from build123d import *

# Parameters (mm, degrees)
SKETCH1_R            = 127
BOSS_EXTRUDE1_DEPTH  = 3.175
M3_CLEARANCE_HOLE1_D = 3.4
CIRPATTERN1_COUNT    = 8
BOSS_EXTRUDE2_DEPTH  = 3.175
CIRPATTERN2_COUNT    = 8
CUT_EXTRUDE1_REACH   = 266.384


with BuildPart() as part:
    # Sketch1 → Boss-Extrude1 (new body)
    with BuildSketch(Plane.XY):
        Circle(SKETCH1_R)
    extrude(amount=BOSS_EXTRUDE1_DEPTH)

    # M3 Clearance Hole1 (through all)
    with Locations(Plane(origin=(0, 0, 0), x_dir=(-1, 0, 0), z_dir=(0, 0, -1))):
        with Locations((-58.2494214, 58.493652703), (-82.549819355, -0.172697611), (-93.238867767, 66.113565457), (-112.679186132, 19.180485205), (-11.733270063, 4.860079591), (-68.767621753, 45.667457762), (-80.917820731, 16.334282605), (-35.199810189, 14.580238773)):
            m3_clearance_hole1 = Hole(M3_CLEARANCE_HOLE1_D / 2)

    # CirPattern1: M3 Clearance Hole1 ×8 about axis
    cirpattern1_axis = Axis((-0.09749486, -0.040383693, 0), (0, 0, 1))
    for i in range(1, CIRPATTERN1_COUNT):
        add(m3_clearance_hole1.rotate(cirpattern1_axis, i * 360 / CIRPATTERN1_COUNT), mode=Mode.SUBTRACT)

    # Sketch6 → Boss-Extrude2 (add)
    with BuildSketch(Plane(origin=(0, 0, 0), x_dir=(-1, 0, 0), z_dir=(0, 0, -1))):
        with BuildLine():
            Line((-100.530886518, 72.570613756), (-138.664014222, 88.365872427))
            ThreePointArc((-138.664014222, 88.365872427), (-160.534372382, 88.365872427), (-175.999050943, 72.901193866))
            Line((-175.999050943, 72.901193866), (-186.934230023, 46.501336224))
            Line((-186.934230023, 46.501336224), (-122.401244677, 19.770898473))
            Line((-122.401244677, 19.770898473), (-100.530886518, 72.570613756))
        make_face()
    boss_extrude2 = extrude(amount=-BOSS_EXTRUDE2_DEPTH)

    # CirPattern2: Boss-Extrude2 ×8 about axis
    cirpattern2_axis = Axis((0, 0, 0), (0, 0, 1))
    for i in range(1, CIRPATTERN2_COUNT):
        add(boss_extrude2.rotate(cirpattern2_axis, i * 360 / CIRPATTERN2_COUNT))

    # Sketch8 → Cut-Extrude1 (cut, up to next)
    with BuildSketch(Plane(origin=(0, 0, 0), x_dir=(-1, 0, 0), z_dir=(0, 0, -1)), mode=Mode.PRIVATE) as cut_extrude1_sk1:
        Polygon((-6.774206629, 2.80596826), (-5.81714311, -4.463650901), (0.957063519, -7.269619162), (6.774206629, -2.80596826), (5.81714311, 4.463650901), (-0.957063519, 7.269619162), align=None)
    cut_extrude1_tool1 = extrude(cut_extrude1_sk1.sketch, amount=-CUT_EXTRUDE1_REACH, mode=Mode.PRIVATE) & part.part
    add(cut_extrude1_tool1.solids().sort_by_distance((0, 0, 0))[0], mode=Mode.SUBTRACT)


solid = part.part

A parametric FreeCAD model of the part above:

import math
import FreeCAD as App
import Part
import Sketcher
Q = App.Units.Quantity


def add_polygon(sketch, points):
    """Adds a closed chain of lines whose ends are joined by coincident constraints."""
    first, n = sketch.GeometryCount, len(points)
    for a, b in zip(points, points[1:] + points[:1]):
        sketch.addGeometry(Part.LineSegment(App.Vector(*a, 0), App.Vector(*b, 0)), False)
    for i in range(n):
        sketch.addConstraint(Sketcher.Constraint("Coincident", first + i, 2, first + (i + 1) % n, 1))

doc = App.newDocument("Part")
body = doc.addObject("PartDesign::Body", "Body")

sketch1 = doc.addObject("Sketcher::SketchObject", "Sketch")
body.addObject(sketch1)
sketch1.AttachmentSupport = (doc.XY_Plane, [""])
sketch1.MapMode = "FlatFace"
sketch1.addGeometry(Part.Circle(App.Vector(0, 0, 0), App.Vector(0, 0, 1), 127), False)
sketch1.addConstraint([
    Sketcher.Constraint("Coincident", 0, 3, -1, 1),
    Sketcher.Constraint("Diameter", 0, Q("10 in")),
])
pad1 = doc.addObject("PartDesign::Pad", "Pad")
body.addObject(pad1)
pad1.Profile = sketch1
pad1.Length = Q("0.125 in")

sketch2 = doc.addObject("Sketcher::SketchObject", "Sketch001")
body.addObject(sketch2)
sketch2.AttachmentSupport = (doc.XY_Plane, [""])
sketch2.MapMode = "FlatFace"
sketch2.addGeometry([
    Part.Circle(App.Vector(58.2, 58.5, 0), App.Vector(0, 0, 1), 1.7),
    Part.Circle(App.Vector(82.5, -0.2, 0), App.Vector(0, 0, 1), 1.7),
    Part.Circle(App.Vector(93.2, 66.1, 0), App.Vector(0, 0, 1), 1.7),
    Part.Circle(App.Vector(112.7, 19.2, 0), App.Vector(0, 0, 1), 1.7),
    Part.Circle(App.Vector(11.7, 4.9, 0), App.Vector(0, 0, 1), 1.7),
    Part.Circle(App.Vector(68.8, 45.7, 0), App.Vector(0, 0, 1), 1.7),
    Part.Circle(App.Vector(80.9, 16.3, 0), App.Vector(0, 0, 1), 1.7),
    Part.Circle(App.Vector(35.2, 14.6, 0), App.Vector(0, 0, 1), 1.7),
], False)
sketch2.addConstraint([
    Sketcher.Constraint("Equal", 0, 1),
    Sketcher.Constraint("Equal", 1, 2),
    Sketcher.Constraint("Equal", 2, 3),
    Sketcher.Constraint("Equal", 3, 4),
    Sketcher.Constraint("Equal", 4, 5),
    Sketcher.Constraint("Equal", 5, 6),
    Sketcher.Constraint("Equal", 6, 7),
    Sketcher.Constraint("Diameter", 0, Q("3.4 mm")),
    Sketcher.Constraint("DistanceX", 0, 3, 5, 3, Q("10.5182 mm")),
    Sketcher.Constraint("DistanceX", 6, 3, 1, 3, Q("1.631999 mm")),
    Sketcher.Constraint("DistanceX", 5, 3, 6, 3, Q("12.150199 mm")),
    Sketcher.Constraint("DistanceX", -1, 1, 0, 3, Q("58.249421 mm")),
    Sketcher.Constraint("DistanceX", -1, 1, 4, 3, Q("11.73327 mm")),
    Sketcher.Constraint("DistanceY", -1, 1, 4, 3, Q("4.86008 mm")),
    Sketcher.Constraint("DistanceX", -1, 1, 7, 3, Q("35.19981 mm")),
    Sketcher.Constraint("DistanceY", -1, 1, 7, 3, Q("14.580239 mm")),
    Sketcher.Constraint("DistanceY", 1, 3, 0, 3, Q("58.66635 mm")),
    Sketcher.Constraint("DistanceX", 1, 3, 2, 3, Q("10.689048 mm")),
    Sketcher.Constraint("DistanceX", 2, 3, 3, 3, Q("19.440318 mm")),
    Sketcher.Constraint("DistanceY", 3, 3, 2, 3, Q("46.93308 mm")),
    Sketcher.Constraint("DistanceY", 4, 3, 5, 3, Q("40.807378 mm")),
    Sketcher.Constraint("DistanceY", 1, 3, 6, 3, Q("16.50698 mm")),
    Sketcher.Constraint("DistanceY", -1, 1, 0, 3, Q("58.493653 mm")),
    Sketcher.Constraint("DistanceY", -1, 1, 2, 3, Q("66.113565 mm")),
])
doc.recompute()
hole = doc.addObject("PartDesign::Hole", "Hole")
body.addObject(hole)
hole.Profile = sketch2
hole.ThreadType = "None"
hole.Diameter = 3.4
hole.DepthType = "ThroughAll"
hole.Reversed = True
doc.recompute()

datumline = doc.addObject("PartDesign::Line", "DatumLine")
body.addObject(datumline)
datumline.Placement = App.Placement(App.Vector(-0.097495, -0.040384, 0), App.Rotation(App.Vector(0, 0, 1), App.Vector(0, 0, 1)))
polarpattern = doc.addObject("PartDesign::PolarPattern", "PolarPattern")
body.addObject(polarpattern)
polarpattern.Originals = [hole]
polarpattern.Axis = (datumline, [""])
polarpattern.Angle = 360
polarpattern.Occurrences = 8
body.Tip = polarpattern

sketch3 = doc.addObject("Sketcher::SketchObject", "Sketch002")
body.addObject(sketch3)
sketch3.AttachmentSupport = (doc.XY_Plane, [""])
sketch3.MapMode = "FlatFace"
sketch3.addGeometry([
    Part.LineSegment(App.Vector(101, 73, 0), App.Vector(139, 88, 0)),
    Part.ArcOfCircle(Part.Circle(App.Vector(150, 62, 0), App.Vector(0, 0, 1), 29), math.radians(23), math.radians(113)),
    Part.LineSegment(App.Vector(176, 73, 0), App.Vector(187, 47, 0)),
    Part.LineSegment(App.Vector(187, 47, 0), App.Vector(122, 20, 0)),
    Part.LineSegment(App.Vector(122, 20, 0), App.Vector(101, 73, 0)),
], False)
sketch3.addConstraint([
    Sketcher.Constraint("Tangent", 0, 2, 1, 2),
    Sketcher.Constraint("Tangent", 1, 1, 2, 1),
    Sketcher.Constraint("Coincident", 2, 2, 3, 1),
    Sketcher.Constraint("Coincident", 3, 2, 4, 1),
    Sketcher.Constraint("Coincident", 4, 2, 0, 1),
    Sketcher.Constraint("Perpendicular", 0, 2),
    Sketcher.Constraint("Perpendicular", 2, 3),
    Sketcher.Constraint("Perpendicular", 3, 4),
    Sketcher.Constraint("Radius", 1, Q("1.125 in")),
    Sketcher.Constraint("Angle", 0, Q("22.5 deg")),
    Sketcher.Constraint("Distance", 3, Q("2.75 in")),
    Sketcher.Constraint("Distance", 4, Q("2.25 in")),
    Sketcher.Constraint("DistanceY", -1, 1, 3, 2, Q("19.770898 mm")),
    Sketcher.Constraint("DistanceX", -1, 1, 1, 1, Q("175.999051 mm")),
])
pad2 = doc.addObject("PartDesign::Pad", "Pad001")
body.addObject(pad2)
pad2.Profile = sketch3
pad2.Length = Q("0.125 in")
doc.recompute()

polarpattern2 = doc.addObject("PartDesign::PolarPattern", "PolarPattern001")
body.addObject(polarpattern2)
polarpattern2.Originals = [pad2]
polarpattern2.Axis = (doc.Z_Axis, [""])
polarpattern2.Angle = 360
polarpattern2.Occurrences = 8
body.Tip = polarpattern2

sketch4 = doc.addObject("Sketcher::SketchObject", "Sketch003")
body.addObject(sketch4)
sketch4.AttachmentSupport = (doc.XY_Plane, [""])
sketch4.MapMode = "FlatFace"
add_polygon(sketch4, [(7, 3), (6, -4), (-1, -7), (-7, -3), (-6, 4), (1, 7)])
sketch4.addConstraint([
    Sketcher.Constraint("Symmetric", 0, 2, 3, 2, -1, 1),
    Sketcher.Constraint("Symmetric", 1, 2, 4, 2, -1, 1),
    Sketcher.Constraint("Symmetric", 2, 2, 5, 2, -1, 1),
    Sketcher.Constraint("Equal", 0, 1),
    Sketcher.Constraint("Equal", 1, 2),
    Sketcher.Constraint("Angle", 0, Q("-97.5 deg")),
    Sketcher.Constraint("Angle", 1, Q("-157.5 deg")),
    Sketcher.Constraint("Angle", 2, Q("142.5 deg")),
    Sketcher.Constraint("DistanceY", 0, 2, 3, 2, Q("8.927302 mm")),
])
pocket1 = doc.addObject("PartDesign::Pocket", "Pocket")
body.addObject(pocket1)
pocket1.Profile = sketch4
pocket1.Type = "UpToFirst"
pocket1.Reversed = True

doc.recompute()
